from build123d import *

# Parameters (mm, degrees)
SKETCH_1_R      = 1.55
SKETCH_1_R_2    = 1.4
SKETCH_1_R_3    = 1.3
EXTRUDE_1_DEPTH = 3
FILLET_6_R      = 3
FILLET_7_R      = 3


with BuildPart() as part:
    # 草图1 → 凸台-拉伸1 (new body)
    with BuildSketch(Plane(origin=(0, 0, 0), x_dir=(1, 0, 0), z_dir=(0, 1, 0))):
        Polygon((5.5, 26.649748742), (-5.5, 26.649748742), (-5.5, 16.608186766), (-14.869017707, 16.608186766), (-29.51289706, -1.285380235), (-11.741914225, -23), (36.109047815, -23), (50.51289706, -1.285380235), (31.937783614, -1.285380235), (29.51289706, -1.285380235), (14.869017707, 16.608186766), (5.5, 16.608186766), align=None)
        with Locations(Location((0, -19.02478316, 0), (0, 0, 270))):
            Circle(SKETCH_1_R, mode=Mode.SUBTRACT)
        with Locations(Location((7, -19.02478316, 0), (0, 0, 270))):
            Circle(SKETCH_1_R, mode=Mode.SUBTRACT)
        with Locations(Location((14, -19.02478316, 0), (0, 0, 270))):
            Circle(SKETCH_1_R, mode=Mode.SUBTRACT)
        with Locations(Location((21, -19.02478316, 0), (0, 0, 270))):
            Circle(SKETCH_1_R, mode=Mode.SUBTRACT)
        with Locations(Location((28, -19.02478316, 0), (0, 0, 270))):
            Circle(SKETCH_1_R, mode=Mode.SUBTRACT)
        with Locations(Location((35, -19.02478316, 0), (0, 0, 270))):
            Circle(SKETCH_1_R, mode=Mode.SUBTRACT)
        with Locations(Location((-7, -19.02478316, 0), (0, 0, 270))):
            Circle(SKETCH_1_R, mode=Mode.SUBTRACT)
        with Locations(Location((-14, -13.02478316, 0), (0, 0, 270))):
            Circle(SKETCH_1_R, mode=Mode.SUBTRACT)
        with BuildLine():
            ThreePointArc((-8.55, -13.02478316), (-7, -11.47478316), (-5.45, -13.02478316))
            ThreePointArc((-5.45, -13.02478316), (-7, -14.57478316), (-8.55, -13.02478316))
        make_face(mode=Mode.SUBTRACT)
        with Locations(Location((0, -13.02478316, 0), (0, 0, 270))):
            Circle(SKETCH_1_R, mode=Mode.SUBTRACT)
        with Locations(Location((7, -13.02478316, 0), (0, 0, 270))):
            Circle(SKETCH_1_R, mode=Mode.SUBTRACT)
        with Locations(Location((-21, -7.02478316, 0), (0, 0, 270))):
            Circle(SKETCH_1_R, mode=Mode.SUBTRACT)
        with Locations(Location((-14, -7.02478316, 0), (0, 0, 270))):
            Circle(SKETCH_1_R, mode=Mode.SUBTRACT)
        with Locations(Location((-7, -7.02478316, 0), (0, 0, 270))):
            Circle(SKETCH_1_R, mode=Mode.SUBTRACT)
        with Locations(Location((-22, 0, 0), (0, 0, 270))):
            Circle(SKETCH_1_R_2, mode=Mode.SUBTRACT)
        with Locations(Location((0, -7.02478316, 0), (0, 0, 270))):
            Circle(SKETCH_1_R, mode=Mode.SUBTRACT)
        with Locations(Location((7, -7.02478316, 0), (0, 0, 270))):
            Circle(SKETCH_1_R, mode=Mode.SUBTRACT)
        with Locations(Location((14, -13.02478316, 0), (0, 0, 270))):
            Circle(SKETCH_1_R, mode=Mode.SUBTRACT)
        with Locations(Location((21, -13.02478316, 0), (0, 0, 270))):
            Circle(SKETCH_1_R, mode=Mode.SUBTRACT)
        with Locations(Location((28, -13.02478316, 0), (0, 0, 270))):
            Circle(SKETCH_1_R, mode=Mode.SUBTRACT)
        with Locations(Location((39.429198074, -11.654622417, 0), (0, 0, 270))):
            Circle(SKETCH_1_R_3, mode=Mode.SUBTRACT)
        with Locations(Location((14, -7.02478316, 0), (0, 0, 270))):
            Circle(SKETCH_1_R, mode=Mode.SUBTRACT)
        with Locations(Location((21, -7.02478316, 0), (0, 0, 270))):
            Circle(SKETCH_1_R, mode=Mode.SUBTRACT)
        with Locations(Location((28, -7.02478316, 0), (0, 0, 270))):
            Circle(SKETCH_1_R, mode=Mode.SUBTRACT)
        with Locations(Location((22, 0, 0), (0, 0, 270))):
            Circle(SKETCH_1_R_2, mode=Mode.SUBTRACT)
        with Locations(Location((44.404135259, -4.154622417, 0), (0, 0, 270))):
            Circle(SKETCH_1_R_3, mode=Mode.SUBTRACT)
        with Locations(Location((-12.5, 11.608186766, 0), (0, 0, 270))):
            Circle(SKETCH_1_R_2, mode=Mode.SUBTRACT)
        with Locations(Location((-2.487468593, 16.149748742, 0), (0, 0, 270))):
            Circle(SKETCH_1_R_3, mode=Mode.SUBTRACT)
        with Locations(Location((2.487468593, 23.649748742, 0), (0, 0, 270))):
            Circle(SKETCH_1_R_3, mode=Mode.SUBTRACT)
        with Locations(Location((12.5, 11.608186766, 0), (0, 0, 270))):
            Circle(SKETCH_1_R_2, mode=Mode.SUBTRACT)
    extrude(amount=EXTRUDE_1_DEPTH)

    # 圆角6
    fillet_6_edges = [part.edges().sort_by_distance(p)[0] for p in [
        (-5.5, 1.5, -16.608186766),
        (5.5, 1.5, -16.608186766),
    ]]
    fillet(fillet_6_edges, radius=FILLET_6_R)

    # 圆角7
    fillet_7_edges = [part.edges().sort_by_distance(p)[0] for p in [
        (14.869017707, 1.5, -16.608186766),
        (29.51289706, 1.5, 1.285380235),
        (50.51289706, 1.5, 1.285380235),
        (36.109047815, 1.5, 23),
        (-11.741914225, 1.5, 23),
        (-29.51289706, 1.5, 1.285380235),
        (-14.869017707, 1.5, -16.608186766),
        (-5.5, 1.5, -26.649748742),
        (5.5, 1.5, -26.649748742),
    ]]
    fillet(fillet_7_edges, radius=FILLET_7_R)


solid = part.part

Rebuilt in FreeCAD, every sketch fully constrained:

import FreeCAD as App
import Part
import Sketcher
from FreeCAD import Vector
Q = App.Units.Quantity


def edges_at(feature, points):
    """Names of the edges that pass closest to the given points."""
    edges = feature.Shape.Edges
    near = lambda p: min(range(len(edges)), key=lambda i: edges[i].distToShape(Part.Vertex(*p))[0])
    return sorted({f"Edge{near(p) + 1}" for p in points})


def add_polygon(sketch, points):
    """Adds a closed chain of lines whose ends are joined by coincident constraints."""
    first, n = sketch.GeometryCount, len(points)
    for a, b in zip(points, points[1:] + points[:1]):
        sketch.addGeometry(Part.LineSegment(App.Vector(*a, 0), App.Vector(*b, 0)), False)
    for i in range(n):
        sketch.addConstraint(Sketcher.Constraint("Coincident", first + i, 2, first + (i + 1) % n, 1))

doc = App.newDocument("Part")
body = doc.addObject("PartDesign::Body", "Body")

sketch1 = doc.addObject("Sketcher::SketchObject", "Sketch")
body.addObject(sketch1)
sketch1.AttachmentSupport = (doc.XZ_Plane, [""])
sketch1.MapMode = "FlatFace"
add_polygon(sketch1, [(5.5, -26.6), (-5.5, -26.6), (-5.5, -16.6), (-14.9, -16.6), (-29.5, 1.3), (-11.7, 23), (36.1, 23), (50.5, 1.3), (29.5, 1.3), (14.9, -16.6), (5.5, -16.6)])
sketch1.addGeometry(Part.Circle(Vector(-7, 19, 0), Vector(0, 0, 1), 1.6), False)
sketch1.addGeometry(Part.Circle(Vector(-14, 13, 0), Vector(0, 0, 1), 1.6), False)
sketch1.addGeometry(Part.Circle(Vector(-7, 13, 0), Vector(0, 0, 1), 1.6), False)
sketch1.addGeometry(Part.Circle(Vector(0, 19, 0), Vector(0, 0, 1), 1.6), False)
sketch1.addGeometry(Part.Circle(Vector(7, 19, 0), Vector(0, 0, 1), 1.6), False)
sketch1.addGeometry(Part.Circle(Vector(0, 13, 0), Vector(0, 0, 1), 1.6), False)
sketch1.addGeometry(Part.Circle(Vector(7, 13, 0), Vector(0, 0, 1), 1.6), False)
sketch1.addGeometry(Part.Circle(Vector(-21, 7, 0), Vector(0, 0, 1), 1.6), False)
sketch1.addGeometry(Part.Circle(Vector(-14, 7, 0), Vector(0, 0, 1), 1.6), False)
sketch1.addGeometry(Part.Circle(Vector(-7, 7, 0), Vector(0, 0, 1), 1.6), False)
sketch1.addGeometry(Part.Circle(Vector(-22, 0, 0), Vector(0, 0, 1), 1.4), False)
sketch1.addGeometry(Part.Circle(Vector(0, 7, 0), Vector(0, 0, 1), 1.6), False)
sketch1.addGeometry(Part.Circle(Vector(7, 7, 0), Vector(0, 0, 1), 1.6), False)
sketch1.addGeometry(Part.Circle(Vector(14, 19, 0), Vector(0, 0, 1), 1.6), False)
sketch1.addGeometry(Part.Circle(Vector(21, 19, 0), Vector(0, 0, 1), 1.6), False)
sketch1.addGeometry(Part.Circle(Vector(28, 19, 0), Vector(0, 0, 1), 1.6), False)
sketch1.addGeometry(Part.Circle(Vector(14, 13, 0), Vector(0, 0, 1), 1.6), False)
sketch1.addGeometry(Part.Circle(Vector(21, 13, 0), Vector(0, 0, 1), 1.6), False)
sketch1.addGeometry(Part.Circle(Vector(28, 13, 0), Vector(0, 0, 1), 1.6), False)
sketch1.addGeometry(Part.Circle(Vector(35, 19, 0), Vector(0, 0, 1), 1.6), False)
sketch1.addGeometry(Part.Circle(Vector(39.4, 11.7, 0), Vector(0, 0, 1), 1.3), False)
sketch1.addGeometry(Part.Circle(Vector(14, 7, 0), Vector(0, 0, 1), 1.6), False)
sketch1.addGeometry(Part.Circle(Vector(21, 7, 0), Vector(0, 0, 1), 1.6), False)
sketch1.addGeometry(Part.Circle(Vector(28, 7, 0), Vector(0, 0, 1), 1.6), False)
sketch1.addGeometry(Part.Circle(Vector(22, 0, 0), Vector(0, 0, 1), 1.4), False)
sketch1.addGeometry(Part.Circle(Vector(44.4, 4.2, 0), Vector(0, 0, 1), 1.3), False)
sketch1.addGeometry(Part.Circle(Vector(-12.5, -11.6, 0), Vector(0, 0, 1), 1.4), False)
sketch1.addGeometry(Part.Circle(Vector(-2.5, -16.1, 0), Vector(0, 0, 1), 1.3), False)
sketch1.addGeometry(Part.Circle(Vector(2.5, -23.6, 0), Vector(0, 0, 1), 1.3), False)
sketch1.addGeometry(Part.Circle(Vector(12.5, -11.6, 0), Vector(0, 0, 1), 1.4), False)
sketch1.addConstraint([
    Sketcher.Constraint("Horizontal", 0),
    Sketcher.Constraint("Vertical", 1),
    Sketcher.Constraint("Horizontal", 2),
    Sketcher.Constraint("Horizontal", 5),
    Sketcher.Constraint("Horizontal", 7),
    Sketcher.Constraint("Horizontal", 9),
    Sketcher.Constraint("Vertical", 10),
    Sketcher.Constraint("Equal", 11, 12),
    Sketcher.Constraint("Equal", 12, 13),
    Sketcher.Constraint("Equal", 13, 14),
    Sketcher.Constraint("Equal", 14, 15),
    Sketcher.Constraint("Equal", 15, 16),
    Sketcher.Constraint("Equal", 16, 17),
    Sketcher.Constraint("Equal", 17, 18),
    Sketcher.Constraint("Equal", 18, 19),
    Sketcher.Constraint("Equal", 19, 20),
    Sketcher.Constraint("Equal", 20, 22),
    Sketcher.Constraint("Equal", 22, 23),
    Sketcher.Constraint("Equal", 23, 24),
    Sketcher.Constraint("Equal", 24, 25),
    Sketcher.Constraint("Equal", 25, 26),
    Sketcher.Constraint("Equal", 26, 27),
    Sketcher.Constraint("Equal", 27, 28),
    Sketcher.Constraint("Equal", 28, 29),
    Sketcher.Constraint("Equal", 29, 30),
    Sketcher.Constraint("Equal", 30, 32),
    Sketcher.Constraint("Equal", 32, 33),
    Sketcher.Constraint("Equal", 33, 34),
    Sketcher.Constraint("Equal", 21, 35),
    Sketcher.Constraint("Equal", 31, 36),
    Sketcher.Constraint("Equal", 35, 37),
    Sketcher.Constraint("Equal", 36, 38),
    Sketcher.Constraint("Equal", 38, 39),
    Sketcher.Constraint("Equal", 37, 40),
    Sketcher.Constraint("Symmetric", 21, 3, 35, 3, -1, 1),
    Sketcher.Constraint("Symmetric", 11, 3, 15, 3, -2),
    Sketcher.Constraint("Symmetric", 13, 3, 17, 3, -2),
    Sketcher.Constraint("Symmetric", 20, 3, 23, 3, -2),
    Sketcher.Constraint("Symmetric", 12, 3, 27, 3, -2),
    Sketcher.Constraint("Symmetric", 19, 3, 32, 3, -2),
    Sketcher.Constraint("Symmetric", 18, 3, 33, 3, -2),
    Sketcher.Constraint("Symmetric", 37, 3, 40, 3, -2),
    Sketcher.Constraint("Symmetric", 3, 2, 7, 2, -2),
    Sketcher.Constraint("Symmetric", 2, 2, 8, 2, -2),
    Sketcher.Constraint("PointOnObject", 14, 3, -2),
    Sketcher.Constraint("PointOnObject", 16, 3, -2),
    Sketcher.Constraint("PointOnObject", 21, 3, -1),
    Sketcher.Constraint("PointOnObject", 22, 3, -2),
    Sketcher.Constraint("Parallel", 4, 8),
    Sketcher.Constraint("Horizontal", 12, 3, 13, 3),
    Sketcher.Constraint("Horizontal", 11, 3, 14, 3),
    Sketcher.Constraint("Horizontal", 13, 3, 16, 3),
    Sketcher.Constraint("Horizontal", 18, 3, 19, 3),
    Sketcher.Constraint("Horizontal", 19, 3, 20, 3),
    Sketcher.Constraint("Horizontal", 20, 3, 22, 3),
    Sketcher.Constraint("Horizontal", 15, 3, 24, 3),
    Sketcher.Constraint("Horizontal", 24, 3, 25, 3),
    Sketcher.Constraint("Horizontal", 25, 3, 26, 3),
    Sketcher.Constraint("Horizontal", 27, 3, 28, 3),
    Sketcher.Constraint("Horizontal", 28, 3, 29, 3),
    Sketcher.Constraint("Horizontal", 26, 3, 30, 3),
    Sketcher.Constraint("Horizontal", 33, 3, 34, 3),
    Sketcher.Constraint("Vertical", 11, 3, 13, 3),
    Sketcher.Constraint("Vertical", 12, 3, 19, 3),
    Sketcher.Constraint("Vertical", 13, 3, 20, 3),
    Sketcher.Constraint("Vertical", 24, 3, 27, 3),
    Sketcher.Constraint("Vertical", 25, 3, 28, 3),
    Sketcher.Constraint("Vertical", 26, 3, 29, 3),
    Sketcher.Constraint("Vertical", 28, 3, 33, 3),
    Sketcher.Constraint("Vertical", 29, 3, 34, 3),
    Sketcher.Constraint("Equal", 2, 9),
    Sketcher.Constraint("Diameter", 11, Q("3.1 mm")),
    Sketcher.Constraint("Diameter", 21, Q("2.8 mm")),
    Sketcher.Constraint("Diameter", 31, Q("2.6 mm")),
    Sketcher.Constraint("DistanceX", 0, 2, 0, 1, Q("11 mm")),
    Sketcher.Constraint("DistanceX", 7, 2, 7, 1, Q("21 mm")),
    Sketcher.Constraint("DistanceX", 11, 3, -1, 1, Q("7 mm")),
    Sketcher.Constraint("DistanceX", 12, 3, -1, 1, Q("14 mm")),
    Sketcher.Constraint("DistanceX", 18, 3, -1, 1, Q("21 mm")),
    Sketcher.Constraint("DistanceX", 21, 3, -1, 1, Q("22 mm")),
    Sketcher.Constraint("DistanceX", -1, 1, 26, 3, Q("28 mm")),
    Sketcher.Constraint("DistanceX", -1, 1, 30, 3, Q("35 mm")),
    Sketcher.Constraint("DistanceY", -1, 1, 4, 2, Q("23 mm")),
    Sketcher.Constraint("DistanceY", 12, 3, 11, 3, Q("6 mm")),
    Sketcher.Constraint("DistanceY", 18, 3, 12, 3, Q("6 mm")),
    Sketcher.Constraint("DistanceY", 0, 2, 39, 3, Q("3 mm")),
    Sketcher.Constraint("DistanceX", 37, 3, 0, 2, Q("7 mm")),
    Sketcher.Constraint("DistanceY", 1, 2, 37, 3, Q("5 mm")),
    Sketcher.Constraint("DistanceY", 36, 3, 31, 3, Q("7.5 mm")),
    Sketcher.Constraint("DistanceY", 39, 3, 38, 3, Q("7.5 mm")),
    Sketcher.Constraint("DistanceY", 1, 1, 1, 2, Q("10.041562 mm")),
    Sketcher.Constraint("DistanceX", -1, 1, 31, 3, Q("39.429198 mm")),
    Sketcher.Constraint("DistanceX", 31, 3, 6, 2, Q("11.083699 mm")),
    Sketcher.Constraint("DistanceX", 2, 2, 2, 1, Q("9.369018 mm")),
    Sketcher.Constraint("DistanceX", 5, 1, 5, 2, Q("47.850962 mm")),
    Sketcher.Constraint("DistanceX", 38, 3, -1, 1, Q("2.487469 mm")),
    Sketcher.Constraint("DistanceY", 38, 3, -1, 1, Q("16.149749 mm")),
    Sketcher.Constraint("DistanceX", -1, 1, 39, 3, Q("2.487469 mm")),
    Sketcher.Constraint("DistanceY", -1, 1, 3, 2, Q("1.28538 mm")),
    Sketcher.Constraint("DistanceY", 31, 3, 30, 3, Q("7.370161 mm")),
    Sketcher.Constraint("DistanceY", 37, 3, 19, 3, Q("18.63297 mm")),
    Sketcher.Constraint("DistanceX", 36, 3, 6, 2, Q("6.108762 mm")),
])
pad1 = doc.addObject("PartDesign::Pad", "Pad")
body.addObject(pad1)
pad1.Profile = sketch1
pad1.Length = 3
pad1.Reversed = True
doc.recompute()

fillet = doc.addObject("PartDesign::Fillet", "Fillet")
body.addObject(fillet)
fillet.Base = (pad1, edges_at(pad1, [(-5.5, 1.5, -16.608), (5.5, 1.5, -16.608)]))
fillet.Radius = 3
doc.recompute()

fillet2 = doc.addObject("PartDesign::Fillet", "Fillet001")
body.addObject(fillet2)
fillet2.Base = (fillet, edges_at(fillet, [
    (14.869, 1.5, -16.608),
    (29.513, 1.5, 1.285),
    (50.513, 1.5, 1.285),
    (36.109, 1.5, 23),
    (-11.742, 1.5, 23),
    (-29.513, 1.5, 1.285),
    (-14.869, 1.5, -16.608),
    (-5.5, 1.5, -26.65),
    (5.5, 1.5, -26.65),
]))
fillet2.Radius = 3

doc.recompute()
